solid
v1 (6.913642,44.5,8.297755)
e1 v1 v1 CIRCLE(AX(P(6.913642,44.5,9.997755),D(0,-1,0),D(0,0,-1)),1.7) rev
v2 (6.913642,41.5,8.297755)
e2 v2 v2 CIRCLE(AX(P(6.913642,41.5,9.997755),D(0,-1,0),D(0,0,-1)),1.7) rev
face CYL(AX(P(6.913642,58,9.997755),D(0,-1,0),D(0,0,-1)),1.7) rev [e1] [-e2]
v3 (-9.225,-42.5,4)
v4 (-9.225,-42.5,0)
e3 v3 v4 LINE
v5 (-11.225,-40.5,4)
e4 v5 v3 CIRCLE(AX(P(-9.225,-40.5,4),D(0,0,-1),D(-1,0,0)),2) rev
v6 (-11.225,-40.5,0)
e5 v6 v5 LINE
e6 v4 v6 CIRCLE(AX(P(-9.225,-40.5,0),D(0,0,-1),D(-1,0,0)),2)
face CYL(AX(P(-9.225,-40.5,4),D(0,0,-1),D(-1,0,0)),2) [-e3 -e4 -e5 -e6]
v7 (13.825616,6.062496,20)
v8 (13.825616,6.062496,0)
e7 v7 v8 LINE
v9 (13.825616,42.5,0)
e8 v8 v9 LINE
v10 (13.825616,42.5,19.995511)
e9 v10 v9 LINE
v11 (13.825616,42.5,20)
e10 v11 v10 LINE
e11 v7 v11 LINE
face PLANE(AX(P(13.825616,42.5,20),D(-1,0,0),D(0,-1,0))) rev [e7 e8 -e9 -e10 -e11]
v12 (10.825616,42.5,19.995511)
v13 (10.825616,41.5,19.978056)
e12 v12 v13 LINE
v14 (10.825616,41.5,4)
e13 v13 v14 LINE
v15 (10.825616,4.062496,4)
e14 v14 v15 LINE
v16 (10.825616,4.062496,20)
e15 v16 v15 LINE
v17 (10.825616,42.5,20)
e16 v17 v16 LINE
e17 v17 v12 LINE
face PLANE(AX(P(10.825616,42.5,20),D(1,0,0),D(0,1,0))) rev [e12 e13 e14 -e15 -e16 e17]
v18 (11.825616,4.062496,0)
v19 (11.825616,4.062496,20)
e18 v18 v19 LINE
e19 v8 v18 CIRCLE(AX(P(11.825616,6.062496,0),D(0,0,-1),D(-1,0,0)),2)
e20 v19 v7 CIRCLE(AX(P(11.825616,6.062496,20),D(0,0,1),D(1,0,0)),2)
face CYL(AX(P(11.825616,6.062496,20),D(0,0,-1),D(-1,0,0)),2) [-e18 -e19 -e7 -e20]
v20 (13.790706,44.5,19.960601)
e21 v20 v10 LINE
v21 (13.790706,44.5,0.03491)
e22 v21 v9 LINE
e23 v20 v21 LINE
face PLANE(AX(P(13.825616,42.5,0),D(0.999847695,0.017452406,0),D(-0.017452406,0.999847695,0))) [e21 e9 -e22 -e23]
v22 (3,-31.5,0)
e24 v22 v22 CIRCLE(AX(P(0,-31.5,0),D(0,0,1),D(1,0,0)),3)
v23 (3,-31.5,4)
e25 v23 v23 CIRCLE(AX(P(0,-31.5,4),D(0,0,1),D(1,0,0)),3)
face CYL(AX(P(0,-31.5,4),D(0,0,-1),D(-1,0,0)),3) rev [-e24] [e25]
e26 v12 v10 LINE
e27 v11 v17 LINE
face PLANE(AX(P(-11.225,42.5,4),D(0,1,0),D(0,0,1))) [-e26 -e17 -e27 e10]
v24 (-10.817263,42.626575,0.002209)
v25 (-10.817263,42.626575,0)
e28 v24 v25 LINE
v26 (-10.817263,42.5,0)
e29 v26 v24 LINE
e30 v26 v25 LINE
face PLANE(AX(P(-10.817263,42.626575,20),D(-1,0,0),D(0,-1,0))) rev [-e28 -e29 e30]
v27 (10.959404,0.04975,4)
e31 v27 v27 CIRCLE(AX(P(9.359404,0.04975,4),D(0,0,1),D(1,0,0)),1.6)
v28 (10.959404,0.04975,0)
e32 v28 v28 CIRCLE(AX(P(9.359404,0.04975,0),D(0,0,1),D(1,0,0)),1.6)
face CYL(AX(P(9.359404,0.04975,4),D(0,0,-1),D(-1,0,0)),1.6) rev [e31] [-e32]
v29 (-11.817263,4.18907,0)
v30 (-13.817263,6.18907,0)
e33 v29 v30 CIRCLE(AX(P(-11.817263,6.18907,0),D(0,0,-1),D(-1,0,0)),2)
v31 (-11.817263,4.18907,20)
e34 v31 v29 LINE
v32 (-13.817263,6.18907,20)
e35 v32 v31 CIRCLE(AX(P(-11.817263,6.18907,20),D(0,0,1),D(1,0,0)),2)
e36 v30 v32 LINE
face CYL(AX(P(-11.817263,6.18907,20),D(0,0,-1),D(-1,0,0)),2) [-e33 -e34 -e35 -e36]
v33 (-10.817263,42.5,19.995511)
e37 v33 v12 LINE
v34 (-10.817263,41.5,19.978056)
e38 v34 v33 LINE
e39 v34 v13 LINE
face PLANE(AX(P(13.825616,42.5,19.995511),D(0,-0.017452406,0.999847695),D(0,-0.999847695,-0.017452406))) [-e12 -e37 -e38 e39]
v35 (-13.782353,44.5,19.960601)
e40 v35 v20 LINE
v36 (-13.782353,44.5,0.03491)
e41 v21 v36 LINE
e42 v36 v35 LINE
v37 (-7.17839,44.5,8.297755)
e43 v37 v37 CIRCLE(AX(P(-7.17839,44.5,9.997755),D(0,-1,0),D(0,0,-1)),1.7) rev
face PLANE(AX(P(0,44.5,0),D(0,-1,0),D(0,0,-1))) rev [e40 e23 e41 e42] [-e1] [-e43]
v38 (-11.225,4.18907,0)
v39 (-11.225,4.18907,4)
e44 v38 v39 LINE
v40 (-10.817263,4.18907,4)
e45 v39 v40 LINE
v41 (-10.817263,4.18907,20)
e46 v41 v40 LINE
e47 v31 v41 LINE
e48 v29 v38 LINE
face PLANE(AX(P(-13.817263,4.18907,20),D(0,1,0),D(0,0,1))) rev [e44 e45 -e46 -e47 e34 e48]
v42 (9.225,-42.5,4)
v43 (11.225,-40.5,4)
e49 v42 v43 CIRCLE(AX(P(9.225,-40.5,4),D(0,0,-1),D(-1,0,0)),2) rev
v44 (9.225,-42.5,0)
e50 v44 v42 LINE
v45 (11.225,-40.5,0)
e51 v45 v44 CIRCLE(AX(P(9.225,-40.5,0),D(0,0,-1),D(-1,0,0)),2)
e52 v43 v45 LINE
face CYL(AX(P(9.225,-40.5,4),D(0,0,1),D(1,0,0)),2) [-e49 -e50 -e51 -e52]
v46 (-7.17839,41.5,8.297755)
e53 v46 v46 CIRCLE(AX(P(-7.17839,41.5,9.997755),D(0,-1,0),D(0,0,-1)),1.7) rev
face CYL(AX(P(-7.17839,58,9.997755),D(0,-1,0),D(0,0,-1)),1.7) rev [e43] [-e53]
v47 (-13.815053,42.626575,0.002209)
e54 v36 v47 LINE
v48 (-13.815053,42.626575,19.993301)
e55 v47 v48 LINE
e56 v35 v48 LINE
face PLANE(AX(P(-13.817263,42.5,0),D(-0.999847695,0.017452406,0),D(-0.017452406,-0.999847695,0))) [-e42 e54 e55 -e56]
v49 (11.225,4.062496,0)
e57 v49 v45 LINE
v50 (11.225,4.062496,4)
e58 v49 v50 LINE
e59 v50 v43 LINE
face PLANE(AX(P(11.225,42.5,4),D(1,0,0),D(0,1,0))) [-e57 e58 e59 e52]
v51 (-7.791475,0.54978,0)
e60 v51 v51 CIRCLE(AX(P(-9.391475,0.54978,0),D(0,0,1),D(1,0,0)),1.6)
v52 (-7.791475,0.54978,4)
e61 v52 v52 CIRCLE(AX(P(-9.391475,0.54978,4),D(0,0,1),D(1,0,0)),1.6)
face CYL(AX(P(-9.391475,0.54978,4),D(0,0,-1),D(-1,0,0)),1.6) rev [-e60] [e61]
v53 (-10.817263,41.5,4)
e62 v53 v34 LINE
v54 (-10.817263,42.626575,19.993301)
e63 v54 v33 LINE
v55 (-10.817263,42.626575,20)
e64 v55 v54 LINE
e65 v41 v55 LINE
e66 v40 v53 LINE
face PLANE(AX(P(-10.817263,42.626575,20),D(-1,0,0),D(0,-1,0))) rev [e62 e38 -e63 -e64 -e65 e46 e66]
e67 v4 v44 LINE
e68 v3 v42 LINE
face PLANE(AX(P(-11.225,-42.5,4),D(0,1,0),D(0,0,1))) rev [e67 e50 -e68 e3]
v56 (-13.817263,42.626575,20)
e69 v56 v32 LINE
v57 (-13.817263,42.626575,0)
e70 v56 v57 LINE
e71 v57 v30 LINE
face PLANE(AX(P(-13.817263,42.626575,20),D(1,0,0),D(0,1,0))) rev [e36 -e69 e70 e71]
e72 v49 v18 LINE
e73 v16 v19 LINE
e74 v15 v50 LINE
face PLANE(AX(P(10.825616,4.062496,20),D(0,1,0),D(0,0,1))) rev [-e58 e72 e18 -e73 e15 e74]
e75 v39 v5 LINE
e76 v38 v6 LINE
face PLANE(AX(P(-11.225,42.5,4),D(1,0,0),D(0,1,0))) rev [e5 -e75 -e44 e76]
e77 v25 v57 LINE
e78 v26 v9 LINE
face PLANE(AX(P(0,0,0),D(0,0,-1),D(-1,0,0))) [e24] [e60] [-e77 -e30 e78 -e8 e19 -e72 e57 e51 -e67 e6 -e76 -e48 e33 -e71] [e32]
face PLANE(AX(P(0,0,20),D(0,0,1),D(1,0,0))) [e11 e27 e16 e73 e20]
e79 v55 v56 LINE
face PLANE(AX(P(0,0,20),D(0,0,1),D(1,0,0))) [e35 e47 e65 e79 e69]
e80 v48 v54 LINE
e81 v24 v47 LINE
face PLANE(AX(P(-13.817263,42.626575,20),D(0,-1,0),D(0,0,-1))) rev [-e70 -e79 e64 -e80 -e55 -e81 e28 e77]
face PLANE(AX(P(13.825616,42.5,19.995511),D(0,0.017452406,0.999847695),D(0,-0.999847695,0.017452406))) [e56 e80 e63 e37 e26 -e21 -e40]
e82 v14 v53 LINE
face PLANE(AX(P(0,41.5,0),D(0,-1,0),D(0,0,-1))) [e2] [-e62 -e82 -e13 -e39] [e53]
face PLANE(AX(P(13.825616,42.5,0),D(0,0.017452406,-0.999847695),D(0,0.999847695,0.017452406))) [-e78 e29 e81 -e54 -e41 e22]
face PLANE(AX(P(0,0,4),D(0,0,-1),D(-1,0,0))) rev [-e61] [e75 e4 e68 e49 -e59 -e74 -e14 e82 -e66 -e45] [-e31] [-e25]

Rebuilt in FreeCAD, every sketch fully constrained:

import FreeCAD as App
import Part
import Sketcher
from FreeCAD import Vector
Q = App.Units.Quantity


def edges_at(feature, points):
    """Names of the edges that pass closest to the given points."""
    edges = feature.Shape.Edges
    near = lambda p: min(range(len(edges)), key=lambda i: edges[i].distToShape(Part.Vertex(*p))[0])
    return sorted({f"Edge{near(p) + 1}" for p in points})


def add_polygon(sketch, points):
    """Adds a closed chain of lines whose ends are joined by coincident constraints."""
    first, n = sketch.GeometryCount, len(points)
    for a, b in zip(points, points[1:] + points[:1]):
        sketch.addGeometry(Part.LineSegment(App.Vector(*a, 0), App.Vector(*b, 0)), False)
    for i in range(n):
        sketch.addConstraint(Sketcher.Constraint("Coincident", first + i, 2, first + (i + 1) % n, 1))

doc = App.newDocument("Part")
body = doc.addObject("PartDesign::Body", "Body")

# Sketch on XY plane
sketch1 = body.newObject("Sketcher::SketchObject", "Sketch")
sketch1.AttachmentSupport = (doc.getObject("XY_Plane"), [""])
sketch1.MapMode = "FlatFace"
add_polygon(sketch1, [(-11.225, 42.5), (-11.225, -42.5), (11.225, -42.5), (11.225, 42.5)])  # lines 0-3
sketch1.addConstraint([
    Sketcher.Constraint("Vertical", 0),
    Sketcher.Constraint("Horizontal", 1),
    Sketcher.Constraint("Vertical", 2),
    Sketcher.Constraint("Horizontal", 3),
    Sketcher.Constraint("Symmetric", 0, 2, 2, 2, -1, 1),
    Sketcher.Constraint("DistanceY", 0, 2, 0, 1, Q("85 mm")),
    Sketcher.Constraint("DistanceX", 1, 1, 1, 2, Q("22.45 mm")),
])
pad1 = body.newObject("PartDesign::Pad", "Pad")
pad1.Profile = sketch1
pad1.Length = 4

# Sketch on XY plane
sketch2 = body.newObject("Sketcher::SketchObject", "Sketch001")
sketch2.AttachmentSupport = (doc.getObject("XY_Plane"), [""])
sketch2.MapMode = "FlatFace"
sketch2.addGeometry(Part.Circle(Vector(0, -31.5, 0), Vector(0, 0, 1), 3), False)
sketch2.addConstraint([
    Sketcher.Constraint("PointOnObject", 0, 3, -2),
    Sketcher.Constraint("Diameter", 0, Q("6 mm")),
    Sketcher.Constraint("DistanceY", 0, 3, -1, 1, Q("31.5 mm")),
])
pocket1 = body.newObject("PartDesign::Pocket", "Pocket")
pocket1.Profile = sketch2
pocket1.Length = 4
pocket1.Reversed = True

# Sketch on XY plane
sketch3 = body.newObject("Sketcher::SketchObject", "Sketch002")
sketch3.AttachmentSupport = (doc.getObject("XY_Plane"), [""])
sketch3.MapMode = "FlatFace"
sketch3.addGeometry([
    Part.Circle(Vector(-9.391475, 0.54978, 0), Vector(0, 0, 1), 1.6),
    Part.Circle(Vector(9.359404, 0.04975, 0), Vector(0, 0, 1), 1.6),
], False)
sketch3.addConstraint([
    Sketcher.Constraint("Equal", 0, 1),
    Sketcher.Constraint("Diameter", 0, Q("3.2 mm")),
    Sketcher.Constraint("DistanceY", -1, 1, 0, 3, Q("0.54978 mm")),
    Sketcher.Constraint("DistanceY", -1, 1, 1, 3, Q("0.04975 mm")),
    Sketcher.Constraint("DistanceX", 0, 3, 1, 3, Q("18.750878 mm")),
    Sketcher.Constraint("DistanceX", 0, 3, -1, 1, Q("9.391475 mm")),
])
pocket2 = body.newObject("PartDesign::Pocket", "Pocket001")
pocket2.Profile = sketch3
pocket2.Length = 4
pocket2.Reversed = True

# Sketch on XY plane
sketch4 = body.newObject("Sketcher::SketchObject", "Sketch003")
sketch4.AttachmentSupport = (doc.getObject("XY_Plane"), [""])
sketch4.MapMode = "FlatFace"
add_polygon(sketch4, [(10.825616, 42.5), (10.825616, 4.062496), (13.825616, 4.062496), (13.825616, 42.5)])  # lines 0-3
add_polygon(sketch4, [(-13.817263, 42.626575), (-13.817263, 4.18907), (-10.817263, 4.18907), (-10.817263, 42.626575)])  # lines 4-7
sketch4.addConstraint([
    Sketcher.Constraint("Vertical", 0),
    Sketcher.Constraint("Horizontal", 1),
    Sketcher.Constraint("Vertical", 2),
    Sketcher.Constraint("Horizontal", 3),
    Sketcher.Constraint("Vertical", 4),
    Sketcher.Constraint("Horizontal", 5),
    Sketcher.Constraint("Vertical", 6),
    Sketcher.Constraint("Horizontal", 7),
    Sketcher.Constraint("Equal", 3, 5),
    Sketcher.Constraint("Equal", 2, 4),
    Sketcher.Constraint("DistanceX", 1, 1, 1, 2, Q("3 mm")),
    Sketcher.Constraint("DistanceY", -1, 1, 2, 2, Q("42.5 mm")),
    Sketcher.Constraint("DistanceY", 0, 2, 0, 1, Q("38.437504 mm")),
    Sketcher.Constraint("DistanceY", -1, 1, 4, 2, Q("4.18907 mm")),
    Sketcher.Constraint("DistanceX", 4, 2, 0, 2, Q("24.642879 mm")),
    Sketcher.Constraint("DistanceX", -1, 1, 0, 2, Q("10.825616 mm")),
])
pad2 = body.newObject("PartDesign::Pad", "Pad001")
pad2.Profile = sketch4
pad2.Length = 20
doc.recompute()

fillet = body.newObject("PartDesign::Fillet", "Fillet")
fillet.Base = (pad2, edges_at(pad2, [
    (13.826, 4.062, 10),
    (-13.817, 4.189, 10),
    (-11.225, -42.5, 2),
    (11.225, -42.5, 2),
]))
fillet.Radius = 2

# Sketch on XZ plane
sketch5 = body.newObject("Sketcher::SketchObject", "Sketch004")
sketch5.AttachmentSupport = (doc.getObject("XZ_Plane"), [""])
sketch5.MapMode = "FlatFace"
sketch5.AttachmentOffset = App.Placement(Vector(0, 0, -42.5), App.Rotation())
add_polygon(sketch5, [(-13.817263, 0), (-13.817263, 19.995511), (13.825616, 19.995511), (13.825616, 0)])  # lines 0-3
sketch5.addConstraint([
    Sketcher.Constraint("Vertical", 0),
    Sketcher.Constraint("Horizontal", 1),
    Sketcher.Constraint("Vertical", 2),
    Sketcher.Constraint("Horizontal", 3),
    Sketcher.Constraint("PointOnObject", 2, 2, -1),
    Sketcher.Constraint("DistanceX", 1, 1, 1, 2, Q("27.642879 mm")),
    Sketcher.Constraint("DistanceY", 0, 1, 0, 2, Q("19.995511 mm")),
    Sketcher.Constraint("DistanceX", 0, 2, -1, 1, Q("13.817263 mm")),
])
pad3 = body.newObject("PartDesign::Pad", "Pad002")
pad3.Profile = sketch5
pad3.Length = 2
pad3.Reversed = True
pad3.TaperAngle = -1

# Sketch on XZ plane
sketch6 = body.newObject("Sketcher::SketchObject", "Sketch005")
sketch6.AttachmentSupport = (doc.getObject("XZ_Plane"), [""])
sketch6.MapMode = "FlatFace"
sketch6.AttachmentOffset = App.Placement(Vector(0, 0, -42.5), App.Rotation())
add_polygon(sketch6, [(-13.817263, 0), (-13.817263, 19.995511), (13.825616, 19.995511), (13.825616, 0)])  # lines 0-3
sketch6.addConstraint([
    Sketcher.Constraint("Vertical", 0),
    Sketcher.Constraint("Horizontal", 1),
    Sketcher.Constraint("Vertical", 2),
    Sketcher.Constraint("Horizontal", 3),
    Sketcher.Constraint("PointOnObject", 2, 2, -1),
    Sketcher.Constraint("DistanceX", 1, 1, 1, 2, Q("27.642879 mm")),
    Sketcher.Constraint("DistanceY", 0, 1, 0, 2, Q("19.995511 mm")),
    Sketcher.Constraint("DistanceX", 0, 2, -1, 1, Q("13.817263 mm")),
])
pad4 = body.newObject("PartDesign::Pad", "Pad003")
pad4.Profile = sketch6
pad4.Length = 1
pad4.TaperAngle = -1

# Sketch on XZ plane
sketch7 = body.newObject("Sketcher::SketchObject", "Sketch006")
sketch7.AttachmentSupport = (doc.getObject("XZ_Plane"), [""])
sketch7.MapMode = "FlatFace"
sketch7.addGeometry([
    Part.Circle(Vector(6.913642, 9.997755, 0), Vector(0, 0, 1), 1.7),
    Part.Circle(Vector(-7.17839, 9.997755, 0), Vector(0, 0, 1), 1.7),
], False)
sketch7.addConstraint([
    Sketcher.Constraint("Equal", 0, 1),
    Sketcher.Constraint("Horizontal", 0, 3, 1, 3),
    Sketcher.Constraint("Diameter", 0, Q("3.4 mm")),
    Sketcher.Constraint("DistanceX", -1, 1, 0, 3, Q("6.913642 mm")),
    Sketcher.Constraint("DistanceX", 1, 3, -1, 1, Q("7.17839 mm")),
    Sketcher.Constraint("DistanceY", -1, 1, 0, 3, Q("9.997755 mm")),
])
pocket3 = body.newObject("PartDesign::Pocket", "Pocket002")
pocket3.Profile = sketch7
pocket3.Length = 58

doc.recompute()
